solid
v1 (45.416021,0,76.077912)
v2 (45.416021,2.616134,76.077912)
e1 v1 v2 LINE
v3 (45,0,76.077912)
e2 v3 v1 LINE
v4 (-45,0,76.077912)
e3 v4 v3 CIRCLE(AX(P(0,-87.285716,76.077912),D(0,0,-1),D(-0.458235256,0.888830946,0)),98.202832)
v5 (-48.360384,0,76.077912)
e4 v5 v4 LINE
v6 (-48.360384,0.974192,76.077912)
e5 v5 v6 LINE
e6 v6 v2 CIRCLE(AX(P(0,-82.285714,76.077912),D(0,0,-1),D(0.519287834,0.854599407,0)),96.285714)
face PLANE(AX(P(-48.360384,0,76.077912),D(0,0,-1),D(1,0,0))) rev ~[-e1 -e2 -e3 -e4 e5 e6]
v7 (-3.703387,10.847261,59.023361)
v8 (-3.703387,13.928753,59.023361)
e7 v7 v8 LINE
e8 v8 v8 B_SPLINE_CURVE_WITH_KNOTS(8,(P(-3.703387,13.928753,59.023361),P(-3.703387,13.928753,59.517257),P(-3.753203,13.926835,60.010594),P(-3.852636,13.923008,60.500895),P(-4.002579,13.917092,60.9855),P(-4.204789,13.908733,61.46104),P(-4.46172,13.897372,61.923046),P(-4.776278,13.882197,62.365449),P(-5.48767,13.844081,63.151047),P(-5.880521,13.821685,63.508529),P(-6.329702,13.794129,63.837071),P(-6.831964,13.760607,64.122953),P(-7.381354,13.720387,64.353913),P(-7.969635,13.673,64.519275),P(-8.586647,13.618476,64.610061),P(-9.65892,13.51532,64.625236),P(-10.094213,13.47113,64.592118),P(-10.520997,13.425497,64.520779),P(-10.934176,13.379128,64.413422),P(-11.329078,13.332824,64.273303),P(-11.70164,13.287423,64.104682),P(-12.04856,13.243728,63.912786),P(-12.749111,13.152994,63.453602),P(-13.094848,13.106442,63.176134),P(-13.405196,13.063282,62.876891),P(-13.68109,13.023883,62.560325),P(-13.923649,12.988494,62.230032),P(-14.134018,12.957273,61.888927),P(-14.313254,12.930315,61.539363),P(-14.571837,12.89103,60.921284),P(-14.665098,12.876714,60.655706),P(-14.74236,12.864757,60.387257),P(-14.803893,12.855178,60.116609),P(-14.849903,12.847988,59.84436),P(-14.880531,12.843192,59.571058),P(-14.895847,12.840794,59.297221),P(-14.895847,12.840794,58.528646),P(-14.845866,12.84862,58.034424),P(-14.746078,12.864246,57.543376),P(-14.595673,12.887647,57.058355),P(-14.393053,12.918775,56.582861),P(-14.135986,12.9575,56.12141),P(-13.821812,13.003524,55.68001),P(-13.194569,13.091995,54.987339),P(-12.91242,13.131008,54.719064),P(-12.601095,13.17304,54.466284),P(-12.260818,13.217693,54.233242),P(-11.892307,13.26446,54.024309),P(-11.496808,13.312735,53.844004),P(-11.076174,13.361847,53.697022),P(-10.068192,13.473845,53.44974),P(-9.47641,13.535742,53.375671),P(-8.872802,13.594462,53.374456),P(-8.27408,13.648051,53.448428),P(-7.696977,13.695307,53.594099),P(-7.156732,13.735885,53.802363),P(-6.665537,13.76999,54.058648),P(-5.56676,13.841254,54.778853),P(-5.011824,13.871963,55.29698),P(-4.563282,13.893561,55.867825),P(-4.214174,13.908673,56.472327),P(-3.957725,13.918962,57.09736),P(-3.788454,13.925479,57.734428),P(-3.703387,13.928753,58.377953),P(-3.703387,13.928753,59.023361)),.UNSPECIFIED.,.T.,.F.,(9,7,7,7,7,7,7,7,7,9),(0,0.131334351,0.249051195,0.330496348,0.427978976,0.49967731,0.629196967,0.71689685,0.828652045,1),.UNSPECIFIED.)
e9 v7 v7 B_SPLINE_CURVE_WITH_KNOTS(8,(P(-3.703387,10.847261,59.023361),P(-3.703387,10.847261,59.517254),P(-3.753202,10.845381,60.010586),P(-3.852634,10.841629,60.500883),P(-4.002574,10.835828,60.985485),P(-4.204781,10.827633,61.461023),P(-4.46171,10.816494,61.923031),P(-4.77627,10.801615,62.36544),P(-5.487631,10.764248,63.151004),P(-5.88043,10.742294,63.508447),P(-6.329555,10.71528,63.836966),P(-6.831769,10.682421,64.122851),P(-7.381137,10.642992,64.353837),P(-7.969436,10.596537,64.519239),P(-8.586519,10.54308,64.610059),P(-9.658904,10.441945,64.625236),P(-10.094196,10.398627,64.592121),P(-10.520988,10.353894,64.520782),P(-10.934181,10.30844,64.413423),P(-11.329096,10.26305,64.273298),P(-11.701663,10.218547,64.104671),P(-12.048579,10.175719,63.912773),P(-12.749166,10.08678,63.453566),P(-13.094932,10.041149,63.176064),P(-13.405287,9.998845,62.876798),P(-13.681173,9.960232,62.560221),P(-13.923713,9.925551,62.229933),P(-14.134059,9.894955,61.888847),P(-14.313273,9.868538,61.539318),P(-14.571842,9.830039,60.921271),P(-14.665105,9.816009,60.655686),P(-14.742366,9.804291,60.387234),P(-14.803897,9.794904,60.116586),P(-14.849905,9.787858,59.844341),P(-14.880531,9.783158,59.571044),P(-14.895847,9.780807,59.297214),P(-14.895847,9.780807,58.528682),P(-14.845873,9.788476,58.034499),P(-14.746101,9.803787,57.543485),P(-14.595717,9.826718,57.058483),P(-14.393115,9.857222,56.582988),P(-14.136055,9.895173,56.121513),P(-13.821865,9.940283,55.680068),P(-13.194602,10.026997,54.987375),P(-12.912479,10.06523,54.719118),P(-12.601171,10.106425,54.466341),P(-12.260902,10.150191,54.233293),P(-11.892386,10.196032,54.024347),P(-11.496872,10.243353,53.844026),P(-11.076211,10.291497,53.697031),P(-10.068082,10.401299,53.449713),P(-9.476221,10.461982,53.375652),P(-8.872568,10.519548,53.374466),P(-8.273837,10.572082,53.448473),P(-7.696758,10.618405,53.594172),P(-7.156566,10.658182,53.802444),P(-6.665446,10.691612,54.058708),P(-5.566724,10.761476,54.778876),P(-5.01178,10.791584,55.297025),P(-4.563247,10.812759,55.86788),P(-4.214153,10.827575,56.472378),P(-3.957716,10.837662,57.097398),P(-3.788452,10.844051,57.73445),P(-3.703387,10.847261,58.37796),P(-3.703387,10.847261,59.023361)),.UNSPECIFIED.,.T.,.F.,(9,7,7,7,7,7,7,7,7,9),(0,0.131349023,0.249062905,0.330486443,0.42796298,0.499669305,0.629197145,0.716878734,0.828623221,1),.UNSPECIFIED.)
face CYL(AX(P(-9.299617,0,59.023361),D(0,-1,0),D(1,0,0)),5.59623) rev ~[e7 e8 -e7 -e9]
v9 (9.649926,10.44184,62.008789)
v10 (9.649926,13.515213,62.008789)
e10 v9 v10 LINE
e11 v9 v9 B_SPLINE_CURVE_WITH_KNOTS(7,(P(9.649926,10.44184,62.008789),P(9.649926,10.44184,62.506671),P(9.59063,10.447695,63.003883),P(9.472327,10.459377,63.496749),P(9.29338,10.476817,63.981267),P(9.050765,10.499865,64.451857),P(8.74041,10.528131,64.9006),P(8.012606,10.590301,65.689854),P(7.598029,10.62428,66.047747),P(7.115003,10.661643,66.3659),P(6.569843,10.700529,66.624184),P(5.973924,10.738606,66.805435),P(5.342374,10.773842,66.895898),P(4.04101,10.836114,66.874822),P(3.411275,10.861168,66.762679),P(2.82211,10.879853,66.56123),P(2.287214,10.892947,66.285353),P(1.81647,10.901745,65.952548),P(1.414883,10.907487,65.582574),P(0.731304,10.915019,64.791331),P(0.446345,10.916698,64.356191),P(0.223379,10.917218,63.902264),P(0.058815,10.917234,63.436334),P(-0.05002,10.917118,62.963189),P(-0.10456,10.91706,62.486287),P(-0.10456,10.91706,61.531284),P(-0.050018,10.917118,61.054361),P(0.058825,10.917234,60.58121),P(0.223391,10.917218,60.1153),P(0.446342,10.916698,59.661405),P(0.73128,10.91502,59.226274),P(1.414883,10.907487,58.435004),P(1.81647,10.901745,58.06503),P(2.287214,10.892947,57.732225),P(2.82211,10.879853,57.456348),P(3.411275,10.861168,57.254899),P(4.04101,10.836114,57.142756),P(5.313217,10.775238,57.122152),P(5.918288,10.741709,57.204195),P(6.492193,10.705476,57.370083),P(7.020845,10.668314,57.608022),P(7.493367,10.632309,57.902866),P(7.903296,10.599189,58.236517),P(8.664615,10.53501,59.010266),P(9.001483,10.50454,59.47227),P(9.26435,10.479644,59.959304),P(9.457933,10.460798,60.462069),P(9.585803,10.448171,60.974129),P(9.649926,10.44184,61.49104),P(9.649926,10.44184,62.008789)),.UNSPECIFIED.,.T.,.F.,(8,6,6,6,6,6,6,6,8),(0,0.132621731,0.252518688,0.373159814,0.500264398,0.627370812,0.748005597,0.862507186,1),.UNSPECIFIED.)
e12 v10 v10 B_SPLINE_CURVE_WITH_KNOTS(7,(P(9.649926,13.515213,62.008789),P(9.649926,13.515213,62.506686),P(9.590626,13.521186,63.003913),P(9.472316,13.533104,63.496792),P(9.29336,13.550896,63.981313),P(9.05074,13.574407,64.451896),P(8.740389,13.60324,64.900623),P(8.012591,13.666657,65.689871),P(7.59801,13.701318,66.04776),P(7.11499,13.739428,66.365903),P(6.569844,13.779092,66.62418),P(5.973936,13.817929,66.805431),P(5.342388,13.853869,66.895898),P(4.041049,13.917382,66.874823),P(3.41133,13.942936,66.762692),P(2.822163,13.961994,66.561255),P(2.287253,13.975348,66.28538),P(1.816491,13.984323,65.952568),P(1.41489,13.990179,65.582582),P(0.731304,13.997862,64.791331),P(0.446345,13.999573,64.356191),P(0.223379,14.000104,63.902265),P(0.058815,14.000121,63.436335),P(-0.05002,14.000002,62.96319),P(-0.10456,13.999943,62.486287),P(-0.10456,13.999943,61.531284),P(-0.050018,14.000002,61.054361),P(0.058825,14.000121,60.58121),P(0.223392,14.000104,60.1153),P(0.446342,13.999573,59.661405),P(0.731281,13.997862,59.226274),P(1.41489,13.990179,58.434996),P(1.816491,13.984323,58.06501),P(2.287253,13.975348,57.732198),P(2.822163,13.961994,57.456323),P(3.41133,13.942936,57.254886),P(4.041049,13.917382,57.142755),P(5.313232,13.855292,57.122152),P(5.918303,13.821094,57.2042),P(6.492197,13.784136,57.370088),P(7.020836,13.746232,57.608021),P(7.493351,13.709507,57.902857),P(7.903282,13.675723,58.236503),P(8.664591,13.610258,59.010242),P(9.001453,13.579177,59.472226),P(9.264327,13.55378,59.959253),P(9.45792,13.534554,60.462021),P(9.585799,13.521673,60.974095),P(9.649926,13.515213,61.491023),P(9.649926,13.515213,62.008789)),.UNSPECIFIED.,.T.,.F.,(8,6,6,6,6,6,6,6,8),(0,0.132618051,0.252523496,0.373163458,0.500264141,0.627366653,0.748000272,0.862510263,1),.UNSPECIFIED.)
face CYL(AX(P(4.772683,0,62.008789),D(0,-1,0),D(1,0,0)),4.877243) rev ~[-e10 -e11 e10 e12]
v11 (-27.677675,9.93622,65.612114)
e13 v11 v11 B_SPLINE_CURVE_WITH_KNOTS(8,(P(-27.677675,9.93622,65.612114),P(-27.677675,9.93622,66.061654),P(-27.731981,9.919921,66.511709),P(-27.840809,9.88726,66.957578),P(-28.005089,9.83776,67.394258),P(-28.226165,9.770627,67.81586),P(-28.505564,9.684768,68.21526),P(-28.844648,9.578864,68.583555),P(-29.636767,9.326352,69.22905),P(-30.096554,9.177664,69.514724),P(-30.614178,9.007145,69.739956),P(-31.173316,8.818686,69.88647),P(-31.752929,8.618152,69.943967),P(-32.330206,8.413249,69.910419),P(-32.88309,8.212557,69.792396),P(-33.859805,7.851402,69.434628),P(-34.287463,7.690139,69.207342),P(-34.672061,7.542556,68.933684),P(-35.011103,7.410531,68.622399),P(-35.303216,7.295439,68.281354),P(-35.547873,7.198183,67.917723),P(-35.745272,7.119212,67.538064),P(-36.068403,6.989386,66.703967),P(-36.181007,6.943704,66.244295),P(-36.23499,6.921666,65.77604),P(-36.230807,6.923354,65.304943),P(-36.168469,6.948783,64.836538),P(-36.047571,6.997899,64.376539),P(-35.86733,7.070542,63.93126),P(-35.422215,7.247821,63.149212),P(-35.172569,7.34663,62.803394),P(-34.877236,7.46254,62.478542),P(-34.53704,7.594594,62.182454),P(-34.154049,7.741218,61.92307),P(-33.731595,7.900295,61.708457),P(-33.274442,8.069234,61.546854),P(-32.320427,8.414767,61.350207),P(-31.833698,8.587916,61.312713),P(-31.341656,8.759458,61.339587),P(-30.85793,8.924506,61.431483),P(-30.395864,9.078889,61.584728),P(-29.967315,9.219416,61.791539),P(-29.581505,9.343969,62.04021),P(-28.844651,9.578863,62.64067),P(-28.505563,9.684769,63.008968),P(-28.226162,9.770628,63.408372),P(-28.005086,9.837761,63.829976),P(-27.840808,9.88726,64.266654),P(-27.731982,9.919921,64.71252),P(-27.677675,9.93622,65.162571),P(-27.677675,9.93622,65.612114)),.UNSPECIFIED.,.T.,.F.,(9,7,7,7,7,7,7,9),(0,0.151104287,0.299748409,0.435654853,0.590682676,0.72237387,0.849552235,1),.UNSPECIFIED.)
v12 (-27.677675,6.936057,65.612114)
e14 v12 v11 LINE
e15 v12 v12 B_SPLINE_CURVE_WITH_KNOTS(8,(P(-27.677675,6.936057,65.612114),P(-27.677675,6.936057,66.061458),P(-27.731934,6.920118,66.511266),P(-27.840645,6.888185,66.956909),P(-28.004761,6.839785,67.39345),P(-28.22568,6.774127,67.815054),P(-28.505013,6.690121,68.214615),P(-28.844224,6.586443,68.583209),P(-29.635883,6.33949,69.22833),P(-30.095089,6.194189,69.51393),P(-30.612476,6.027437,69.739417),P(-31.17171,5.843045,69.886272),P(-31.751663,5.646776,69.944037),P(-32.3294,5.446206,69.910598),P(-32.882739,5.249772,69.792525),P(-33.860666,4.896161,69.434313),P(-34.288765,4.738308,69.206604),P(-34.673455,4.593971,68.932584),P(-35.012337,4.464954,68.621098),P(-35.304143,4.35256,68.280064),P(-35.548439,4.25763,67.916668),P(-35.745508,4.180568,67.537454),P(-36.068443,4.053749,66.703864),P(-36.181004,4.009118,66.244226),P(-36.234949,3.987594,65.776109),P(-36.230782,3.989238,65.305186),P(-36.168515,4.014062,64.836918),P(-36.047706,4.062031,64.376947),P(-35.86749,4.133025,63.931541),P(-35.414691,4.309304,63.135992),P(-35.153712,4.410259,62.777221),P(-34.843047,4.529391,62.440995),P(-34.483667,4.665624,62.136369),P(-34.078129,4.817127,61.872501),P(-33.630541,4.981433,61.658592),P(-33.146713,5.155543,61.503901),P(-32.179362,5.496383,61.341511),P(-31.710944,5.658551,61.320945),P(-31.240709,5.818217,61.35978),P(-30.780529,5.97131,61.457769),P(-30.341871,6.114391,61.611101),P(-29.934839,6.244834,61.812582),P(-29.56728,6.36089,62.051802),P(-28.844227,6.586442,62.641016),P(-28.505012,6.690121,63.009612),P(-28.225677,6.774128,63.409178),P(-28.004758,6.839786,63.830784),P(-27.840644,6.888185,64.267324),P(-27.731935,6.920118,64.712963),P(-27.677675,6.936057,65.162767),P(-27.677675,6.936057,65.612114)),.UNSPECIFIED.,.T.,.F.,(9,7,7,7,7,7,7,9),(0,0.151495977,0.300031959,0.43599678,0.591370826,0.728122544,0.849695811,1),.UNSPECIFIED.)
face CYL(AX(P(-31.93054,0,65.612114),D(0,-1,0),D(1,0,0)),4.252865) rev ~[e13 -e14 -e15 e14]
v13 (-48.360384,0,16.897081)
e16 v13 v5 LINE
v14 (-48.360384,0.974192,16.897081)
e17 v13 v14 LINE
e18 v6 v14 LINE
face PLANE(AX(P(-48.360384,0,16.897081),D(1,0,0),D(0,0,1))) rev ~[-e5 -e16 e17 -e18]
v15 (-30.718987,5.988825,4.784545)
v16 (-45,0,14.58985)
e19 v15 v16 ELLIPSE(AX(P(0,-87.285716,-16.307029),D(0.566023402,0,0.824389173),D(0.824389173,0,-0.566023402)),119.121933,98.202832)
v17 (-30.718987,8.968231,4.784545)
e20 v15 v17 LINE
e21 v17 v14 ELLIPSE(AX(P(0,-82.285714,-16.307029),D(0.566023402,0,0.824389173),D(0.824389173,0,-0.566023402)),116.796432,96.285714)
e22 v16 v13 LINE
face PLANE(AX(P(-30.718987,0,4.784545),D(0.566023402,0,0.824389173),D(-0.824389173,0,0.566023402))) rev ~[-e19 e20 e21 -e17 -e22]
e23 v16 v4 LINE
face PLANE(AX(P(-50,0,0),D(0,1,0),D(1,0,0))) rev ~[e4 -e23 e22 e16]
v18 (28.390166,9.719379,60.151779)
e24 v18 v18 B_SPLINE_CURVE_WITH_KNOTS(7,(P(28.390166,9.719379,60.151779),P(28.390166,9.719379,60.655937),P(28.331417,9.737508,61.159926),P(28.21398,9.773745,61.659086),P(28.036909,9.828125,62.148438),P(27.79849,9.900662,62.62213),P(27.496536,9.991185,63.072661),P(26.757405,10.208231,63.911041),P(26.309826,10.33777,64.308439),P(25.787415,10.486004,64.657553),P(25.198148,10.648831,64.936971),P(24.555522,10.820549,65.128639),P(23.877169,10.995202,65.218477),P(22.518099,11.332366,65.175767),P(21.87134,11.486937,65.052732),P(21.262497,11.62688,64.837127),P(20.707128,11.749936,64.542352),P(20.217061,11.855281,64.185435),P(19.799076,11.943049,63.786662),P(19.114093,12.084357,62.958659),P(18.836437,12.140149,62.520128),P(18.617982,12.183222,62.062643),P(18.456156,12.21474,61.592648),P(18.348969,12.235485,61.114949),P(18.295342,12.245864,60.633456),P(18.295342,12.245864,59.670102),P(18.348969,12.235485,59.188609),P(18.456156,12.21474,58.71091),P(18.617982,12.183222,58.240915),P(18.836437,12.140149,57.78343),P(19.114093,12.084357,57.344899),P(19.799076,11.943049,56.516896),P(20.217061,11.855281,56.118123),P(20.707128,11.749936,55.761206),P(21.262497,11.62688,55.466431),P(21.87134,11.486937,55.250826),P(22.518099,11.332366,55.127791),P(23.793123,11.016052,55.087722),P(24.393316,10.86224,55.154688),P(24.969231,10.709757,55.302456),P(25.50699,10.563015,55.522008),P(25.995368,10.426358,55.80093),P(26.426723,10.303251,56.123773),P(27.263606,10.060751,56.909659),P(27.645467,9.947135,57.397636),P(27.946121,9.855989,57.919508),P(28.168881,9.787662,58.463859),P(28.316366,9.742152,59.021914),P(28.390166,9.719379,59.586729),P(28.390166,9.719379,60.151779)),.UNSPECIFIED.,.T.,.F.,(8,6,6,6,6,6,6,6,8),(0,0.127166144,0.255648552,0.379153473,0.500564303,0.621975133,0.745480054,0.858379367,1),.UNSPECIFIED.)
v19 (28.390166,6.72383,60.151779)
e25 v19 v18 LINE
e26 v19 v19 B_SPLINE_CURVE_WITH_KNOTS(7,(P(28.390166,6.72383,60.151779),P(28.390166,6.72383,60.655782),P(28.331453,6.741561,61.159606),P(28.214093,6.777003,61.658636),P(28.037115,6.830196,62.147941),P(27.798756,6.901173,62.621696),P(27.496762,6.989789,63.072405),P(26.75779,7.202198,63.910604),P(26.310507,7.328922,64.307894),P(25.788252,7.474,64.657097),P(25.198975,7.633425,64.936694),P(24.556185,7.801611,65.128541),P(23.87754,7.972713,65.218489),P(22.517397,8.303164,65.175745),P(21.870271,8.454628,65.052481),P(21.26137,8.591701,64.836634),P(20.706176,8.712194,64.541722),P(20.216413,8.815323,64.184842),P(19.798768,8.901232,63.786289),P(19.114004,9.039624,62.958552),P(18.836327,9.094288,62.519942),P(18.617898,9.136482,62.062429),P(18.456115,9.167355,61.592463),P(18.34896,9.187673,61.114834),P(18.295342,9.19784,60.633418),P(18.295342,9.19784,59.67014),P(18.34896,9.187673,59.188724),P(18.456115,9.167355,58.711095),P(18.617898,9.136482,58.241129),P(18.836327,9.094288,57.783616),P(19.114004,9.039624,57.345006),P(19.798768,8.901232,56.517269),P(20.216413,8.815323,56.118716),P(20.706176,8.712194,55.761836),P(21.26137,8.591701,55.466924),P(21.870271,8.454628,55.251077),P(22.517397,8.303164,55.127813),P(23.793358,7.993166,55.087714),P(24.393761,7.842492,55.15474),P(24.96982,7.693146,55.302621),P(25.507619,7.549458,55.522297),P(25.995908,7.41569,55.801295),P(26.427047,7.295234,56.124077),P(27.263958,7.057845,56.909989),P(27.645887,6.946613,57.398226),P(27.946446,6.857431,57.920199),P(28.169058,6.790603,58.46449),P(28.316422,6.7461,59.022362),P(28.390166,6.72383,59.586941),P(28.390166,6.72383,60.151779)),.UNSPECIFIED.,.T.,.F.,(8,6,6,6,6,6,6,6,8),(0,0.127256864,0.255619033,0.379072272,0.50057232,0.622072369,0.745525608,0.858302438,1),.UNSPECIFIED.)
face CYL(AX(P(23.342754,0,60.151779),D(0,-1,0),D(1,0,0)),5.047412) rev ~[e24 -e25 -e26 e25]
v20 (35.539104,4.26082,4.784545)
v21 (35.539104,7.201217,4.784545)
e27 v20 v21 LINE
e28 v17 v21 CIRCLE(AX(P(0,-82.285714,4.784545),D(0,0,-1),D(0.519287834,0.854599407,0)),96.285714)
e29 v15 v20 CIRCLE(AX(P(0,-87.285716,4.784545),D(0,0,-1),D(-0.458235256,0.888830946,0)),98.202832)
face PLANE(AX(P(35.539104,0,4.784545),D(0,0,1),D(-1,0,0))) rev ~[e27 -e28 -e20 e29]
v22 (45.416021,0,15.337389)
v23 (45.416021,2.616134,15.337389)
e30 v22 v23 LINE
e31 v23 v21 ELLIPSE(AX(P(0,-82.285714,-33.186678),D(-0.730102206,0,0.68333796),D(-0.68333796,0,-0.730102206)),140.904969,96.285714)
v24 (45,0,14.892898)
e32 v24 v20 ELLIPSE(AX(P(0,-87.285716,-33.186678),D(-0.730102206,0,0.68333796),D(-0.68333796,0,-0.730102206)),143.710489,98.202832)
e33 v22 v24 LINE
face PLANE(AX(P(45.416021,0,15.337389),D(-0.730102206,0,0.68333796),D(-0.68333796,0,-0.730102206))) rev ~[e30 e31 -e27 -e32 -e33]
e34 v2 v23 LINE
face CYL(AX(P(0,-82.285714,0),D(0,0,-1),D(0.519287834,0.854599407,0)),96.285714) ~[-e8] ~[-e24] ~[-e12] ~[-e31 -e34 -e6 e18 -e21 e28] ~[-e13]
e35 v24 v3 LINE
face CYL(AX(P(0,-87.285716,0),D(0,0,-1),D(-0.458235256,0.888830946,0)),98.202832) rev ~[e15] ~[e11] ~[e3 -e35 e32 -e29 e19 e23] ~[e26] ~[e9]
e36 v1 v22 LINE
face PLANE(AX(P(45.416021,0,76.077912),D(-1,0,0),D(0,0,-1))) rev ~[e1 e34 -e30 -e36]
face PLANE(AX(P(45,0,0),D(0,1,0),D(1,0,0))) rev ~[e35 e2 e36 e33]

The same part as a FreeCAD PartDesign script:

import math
import FreeCAD as App
import Part
import Sketcher

V = App.Vector
Q = App.Units.Quantity

doc = App.newDocument("Part")
params = doc.addObject("Spreadsheet::Sheet", "Params")
for row, (alias, value) in enumerate([
    ("pad1_length", "20 mm"),
    ("sketch2_width", "5 mm"),
    ("pad2_length", "80 mm"),
    ("sketch3_width", "100 mm"),
    ("sketch3_height", "80 mm"),
], start=1):
    params.set(f"A{row}", alias)
    params.set(f"B{row}", "=" + value)
    params.setAlias(f"B{row}", alias)

body = doc.addObject("PartDesign::Body", "Body")
body.AllowCompound = True

# Sketch on XZ plane
sketch1 = body.newObject("Sketcher::SketchObject", "Sketch")
sketch1.AttachmentSupport = (doc.getObject("XZ_Plane"), [""])
sketch1.MapMode = "FlatFace"
sketch1.addGeometry(Part.Circle(V(-31.9, 65.6, 0), V(0, 0, 1), 4.3), False)
sketch1.addGeometry(Part.Circle(V(-9.3, 59, 0), V(0, 0, 1), 5.6), False)
sketch1.addGeometry(Part.Circle(V(4.8, 62, 0), V(0, 0, 1), 4.9), False)
sketch1.addGeometry(Part.Circle(V(23.3, 60.2, 0), V(0, 0, 1), 5), False)
sketch1.addConstraint(Sketcher.Constraint("Diameter", 0, Q("8.50573 mm")))
sketch1.addConstraint(Sketcher.Constraint("Diameter", 1, Q("11.19246 mm")))
sketch1.addConstraint(Sketcher.Constraint("Diameter", 2, Q("9.754486 mm")))
sketch1.addConstraint(Sketcher.Constraint("Diameter", 3, Q("10.094824 mm")))
sketch1.addConstraint(Sketcher.Constraint("DistanceX", 1, 3, 2, 3, Q("14.0723 mm")))
sketch1.addConstraint(Sketcher.Constraint("DistanceX", 0, 3, -1, 1, Q("31.93054 mm")))
sketch1.addConstraint(Sketcher.Constraint("DistanceY", -1, 1, 1, 3, Q("59.023361 mm")))
sketch1.addConstraint(Sketcher.Constraint("DistanceY", -1, 1, 2, 3, Q("62.008789 mm")))
sketch1.addConstraint(Sketcher.Constraint("DistanceY", -1, 1, 3, 3, Q("60.151779 mm")))
sketch1.addConstraint(Sketcher.Constraint("DistanceX", 2, 3, 3, 3, Q("18.570071 mm")))
sketch1.addConstraint(Sketcher.Constraint("DistanceY", -1, 1, 0, 3, Q("65.612114 mm")))
sketch1.addConstraint(Sketcher.Constraint("DistanceX", 1, 3, -1, 1, Q("9.299617 mm")))
pad1 = body.newObject("PartDesign::Pad", "Pad")
pad1.Profile = sketch1
pad1.setExpression("Length", "Params.pad1_length")
pad1.Reversed = True
body2 = doc.addObject("PartDesign::Body", "Body001")

# Sketch on XY plane
sketch2 = body2.newObject("Sketcher::SketchObject", "Sketch001")
sketch2.AttachmentSupport = (doc.getObject("XY_Plane001"), [""])
sketch2.MapMode = "FlatFace"
sketch2.addGeometry(Part.LineSegment(V(45, 0, 0), V(50, 0, 0)), False)
sketch2.addGeometry(Part.ArcOfCircle(Part.Circle(V(0, -82, 0), V(0, 0, 1), 96), math.radians(59), math.radians(121)), False)
sketch2.addGeometry(Part.LineSegment(V(-50, 0, 0), V(-45, 0, 0)), False)
sketch2.addGeometry(Part.ArcOfCircle(Part.Circle(V(0, -87, 0), V(0, 0, 1), 98), math.radians(63), math.radians(117)), False)
sketch2.addConstraint(Sketcher.Constraint("Coincident", 0, 2, 1, 1))
sketch2.addConstraint(Sketcher.Constraint("Coincident", 1, 2, 2, 1))
sketch2.addConstraint(Sketcher.Constraint("Coincident", 2, 2, 3, 2))
sketch2.addConstraint(Sketcher.Constraint("Coincident", 3, 1, 0, 1))
sketch2.addConstraint(Sketcher.Constraint("Horizontal", 0))
sketch2.addConstraint(Sketcher.Constraint("Horizontal", 2))
sketch2.addConstraint(Sketcher.Constraint("Symmetric", 0, 2, 1, 2, -1, 1))
sketch2.addConstraint(Sketcher.Constraint("Symmetric", 2, 2, 3, 1, -2))
sketch2.addConstraint(Sketcher.Constraint("DistanceX", 0, 1, 0, 2, Q("5 mm")))
sketch2.addConstraint(Sketcher.Constraint("DistanceX", -1, 1, 0, 2, Q("50 mm")))
sketch2.addConstraint(Sketcher.Constraint("DistanceY", 3, 3, 1, 3, Q("5.000002 mm")))
sketch2.addConstraint(Sketcher.Constraint("Radius", 1, Q("96.285714 mm")))
sketch2.setExpression("Constraints[8]", "Params.sketch2_width")
pad2 = body2.newObject("PartDesign::Pad", "Pad001")
pad2.Profile = sketch2
pad2.setExpression("Length", "Params.pad2_length")

# Sketch on XZ plane
sketch3 = body2.newObject("Sketcher::SketchObject", "Sketch002")
sketch3.AttachmentSupport = (doc.getObject("XZ_Plane001"), [""])
sketch3.MapMode = "FlatFace"
sketch3.addGeometry(Part.LineSegment(V(-50, 80, 0), V(-50, 0, 0)), False)
sketch3.addGeometry(Part.LineSegment(V(-50, 0, 0), V(50, 0, 0)), False)
sketch3.addGeometry(Part.LineSegment(V(50, 0, 0), V(50, 80, 0)), False)
sketch3.addGeometry(Part.LineSegment(V(50, 80, 0), V(-50, 80, 0)), False)
sketch3.addGeometry(Part.LineSegment(V(36, 5, 0), V(-31, 5, 0)), False)
sketch3.addGeometry(Part.LineSegment(V(-31, 5, 0), V(-48, 17, 0)), False)
sketch3.addGeometry(Part.LineSegment(V(-48, 17, 0), V(-48, 76, 0)), False)
sketch3.addGeometry(Part.LineSegment(V(-48, 76, 0), V(45, 76, 0)), False)
sketch3.addGeometry(Part.LineSegment(V(45, 76, 0), V(45, 15, 0)), False)
sketch3.addGeometry(Part.LineSegment(V(45, 15, 0), V(36, 5, 0)), False)
sketch3.addConstraint(Sketcher.Constraint("Coincident", 0, 2, 1, 1))
sketch3.addConstraint(Sketcher.Constraint("Coincident", 1, 2, 2, 1))
sketch3.addConstraint(Sketcher.Constraint("Coincident", 2, 2, 3, 1))
sketch3.addConstraint(Sketcher.Constraint("Coincident", 3, 2, 0, 1))
sketch3.addConstraint(Sketcher.Constraint("Coincident", 4, 2, 5, 1))
sketch3.addConstraint(Sketcher.Constraint("Coincident", 5, 2, 6, 1))
sketch3.addConstraint(Sketcher.Constraint("Coincident", 6, 2, 7, 1))
sketch3.addConstraint(Sketcher.Constraint("Coincident", 7, 2, 8, 1))
sketch3.addConstraint(Sketcher.Constraint("Coincident", 8, 2, 9, 1))
sketch3.addConstraint(Sketcher.Constraint("Coincident", 9, 2, 4, 1))
sketch3.addConstraint(Sketcher.Constraint("Vertical", 0))
sketch3.addConstraint(Sketcher.Constraint("Horizontal", 1))
sketch3.addConstraint(Sketcher.Constraint("Vertical", 2))
sketch3.addConstraint(Sketcher.Constraint("Horizontal", 3))
sketch3.addConstraint(Sketcher.Constraint("Horizontal", 4))
sketch3.addConstraint(Sketcher.Constraint("Vertical", 6))
sketch3.addConstraint(Sketcher.Constraint("Horizontal", 7))
sketch3.addConstraint(Sketcher.Constraint("Vertical", 8))
sketch3.addConstraint(Sketcher.Constraint("Symmetric", 0, 2, 1, 2, -1, 1))
sketch3.addConstraint(Sketcher.Constraint("DistanceX", 1, 1, 1, 2, Q("100 mm")))
sketch3.addConstraint(Sketcher.Constraint("DistanceY", 0, 2, 0, 1, Q("80 mm")))
sketch3.addConstraint(Sketcher.Constraint("DistanceX", 4, 2, 4, 1, Q("66.258091 mm")))
sketch3.addConstraint(Sketcher.Constraint("DistanceY", 6, 1, 6, 2, Q("59.180831 mm")))
sketch3.addConstraint(Sketcher.Constraint("DistanceX", 7, 1, 7, 2, Q("93.776405 mm")))
sketch3.addConstraint(Sketcher.Constraint("DistanceY", 8, 2, 8, 1, Q("60.740523 mm")))
sketch3.addConstraint(Sketcher.Constraint("DistanceY", -1, 1, 5, 2, Q("16.897081 mm")))
sketch3.addConstraint(Sketcher.Constraint("DistanceX", -1, 1, 7, 2, Q("45.416021 mm")))
sketch3.addConstraint(Sketcher.Constraint("DistanceX", 4, 2, 7, 2, Q("76.135008 mm")))
sketch3.addConstraint(Sketcher.Constraint("Distance", 5, Q("21.399356 mm")))
sketch3.setExpression("Constraints[19]", "Params.sketch3_width")
sketch3.setExpression("Constraints[20]", "Params.sketch3_height")
pocket1 = body2.newObject("PartDesign::Pocket", "Pocket")
pocket1.Profile = sketch3
pocket1.Type = "ThroughAll"
doc.recompute()

boolean = body2.newObject("PartDesign::Boolean", "Boolean")
boolean.Type = "Cut"
boolean.addObjects([body])

doc.recompute()
